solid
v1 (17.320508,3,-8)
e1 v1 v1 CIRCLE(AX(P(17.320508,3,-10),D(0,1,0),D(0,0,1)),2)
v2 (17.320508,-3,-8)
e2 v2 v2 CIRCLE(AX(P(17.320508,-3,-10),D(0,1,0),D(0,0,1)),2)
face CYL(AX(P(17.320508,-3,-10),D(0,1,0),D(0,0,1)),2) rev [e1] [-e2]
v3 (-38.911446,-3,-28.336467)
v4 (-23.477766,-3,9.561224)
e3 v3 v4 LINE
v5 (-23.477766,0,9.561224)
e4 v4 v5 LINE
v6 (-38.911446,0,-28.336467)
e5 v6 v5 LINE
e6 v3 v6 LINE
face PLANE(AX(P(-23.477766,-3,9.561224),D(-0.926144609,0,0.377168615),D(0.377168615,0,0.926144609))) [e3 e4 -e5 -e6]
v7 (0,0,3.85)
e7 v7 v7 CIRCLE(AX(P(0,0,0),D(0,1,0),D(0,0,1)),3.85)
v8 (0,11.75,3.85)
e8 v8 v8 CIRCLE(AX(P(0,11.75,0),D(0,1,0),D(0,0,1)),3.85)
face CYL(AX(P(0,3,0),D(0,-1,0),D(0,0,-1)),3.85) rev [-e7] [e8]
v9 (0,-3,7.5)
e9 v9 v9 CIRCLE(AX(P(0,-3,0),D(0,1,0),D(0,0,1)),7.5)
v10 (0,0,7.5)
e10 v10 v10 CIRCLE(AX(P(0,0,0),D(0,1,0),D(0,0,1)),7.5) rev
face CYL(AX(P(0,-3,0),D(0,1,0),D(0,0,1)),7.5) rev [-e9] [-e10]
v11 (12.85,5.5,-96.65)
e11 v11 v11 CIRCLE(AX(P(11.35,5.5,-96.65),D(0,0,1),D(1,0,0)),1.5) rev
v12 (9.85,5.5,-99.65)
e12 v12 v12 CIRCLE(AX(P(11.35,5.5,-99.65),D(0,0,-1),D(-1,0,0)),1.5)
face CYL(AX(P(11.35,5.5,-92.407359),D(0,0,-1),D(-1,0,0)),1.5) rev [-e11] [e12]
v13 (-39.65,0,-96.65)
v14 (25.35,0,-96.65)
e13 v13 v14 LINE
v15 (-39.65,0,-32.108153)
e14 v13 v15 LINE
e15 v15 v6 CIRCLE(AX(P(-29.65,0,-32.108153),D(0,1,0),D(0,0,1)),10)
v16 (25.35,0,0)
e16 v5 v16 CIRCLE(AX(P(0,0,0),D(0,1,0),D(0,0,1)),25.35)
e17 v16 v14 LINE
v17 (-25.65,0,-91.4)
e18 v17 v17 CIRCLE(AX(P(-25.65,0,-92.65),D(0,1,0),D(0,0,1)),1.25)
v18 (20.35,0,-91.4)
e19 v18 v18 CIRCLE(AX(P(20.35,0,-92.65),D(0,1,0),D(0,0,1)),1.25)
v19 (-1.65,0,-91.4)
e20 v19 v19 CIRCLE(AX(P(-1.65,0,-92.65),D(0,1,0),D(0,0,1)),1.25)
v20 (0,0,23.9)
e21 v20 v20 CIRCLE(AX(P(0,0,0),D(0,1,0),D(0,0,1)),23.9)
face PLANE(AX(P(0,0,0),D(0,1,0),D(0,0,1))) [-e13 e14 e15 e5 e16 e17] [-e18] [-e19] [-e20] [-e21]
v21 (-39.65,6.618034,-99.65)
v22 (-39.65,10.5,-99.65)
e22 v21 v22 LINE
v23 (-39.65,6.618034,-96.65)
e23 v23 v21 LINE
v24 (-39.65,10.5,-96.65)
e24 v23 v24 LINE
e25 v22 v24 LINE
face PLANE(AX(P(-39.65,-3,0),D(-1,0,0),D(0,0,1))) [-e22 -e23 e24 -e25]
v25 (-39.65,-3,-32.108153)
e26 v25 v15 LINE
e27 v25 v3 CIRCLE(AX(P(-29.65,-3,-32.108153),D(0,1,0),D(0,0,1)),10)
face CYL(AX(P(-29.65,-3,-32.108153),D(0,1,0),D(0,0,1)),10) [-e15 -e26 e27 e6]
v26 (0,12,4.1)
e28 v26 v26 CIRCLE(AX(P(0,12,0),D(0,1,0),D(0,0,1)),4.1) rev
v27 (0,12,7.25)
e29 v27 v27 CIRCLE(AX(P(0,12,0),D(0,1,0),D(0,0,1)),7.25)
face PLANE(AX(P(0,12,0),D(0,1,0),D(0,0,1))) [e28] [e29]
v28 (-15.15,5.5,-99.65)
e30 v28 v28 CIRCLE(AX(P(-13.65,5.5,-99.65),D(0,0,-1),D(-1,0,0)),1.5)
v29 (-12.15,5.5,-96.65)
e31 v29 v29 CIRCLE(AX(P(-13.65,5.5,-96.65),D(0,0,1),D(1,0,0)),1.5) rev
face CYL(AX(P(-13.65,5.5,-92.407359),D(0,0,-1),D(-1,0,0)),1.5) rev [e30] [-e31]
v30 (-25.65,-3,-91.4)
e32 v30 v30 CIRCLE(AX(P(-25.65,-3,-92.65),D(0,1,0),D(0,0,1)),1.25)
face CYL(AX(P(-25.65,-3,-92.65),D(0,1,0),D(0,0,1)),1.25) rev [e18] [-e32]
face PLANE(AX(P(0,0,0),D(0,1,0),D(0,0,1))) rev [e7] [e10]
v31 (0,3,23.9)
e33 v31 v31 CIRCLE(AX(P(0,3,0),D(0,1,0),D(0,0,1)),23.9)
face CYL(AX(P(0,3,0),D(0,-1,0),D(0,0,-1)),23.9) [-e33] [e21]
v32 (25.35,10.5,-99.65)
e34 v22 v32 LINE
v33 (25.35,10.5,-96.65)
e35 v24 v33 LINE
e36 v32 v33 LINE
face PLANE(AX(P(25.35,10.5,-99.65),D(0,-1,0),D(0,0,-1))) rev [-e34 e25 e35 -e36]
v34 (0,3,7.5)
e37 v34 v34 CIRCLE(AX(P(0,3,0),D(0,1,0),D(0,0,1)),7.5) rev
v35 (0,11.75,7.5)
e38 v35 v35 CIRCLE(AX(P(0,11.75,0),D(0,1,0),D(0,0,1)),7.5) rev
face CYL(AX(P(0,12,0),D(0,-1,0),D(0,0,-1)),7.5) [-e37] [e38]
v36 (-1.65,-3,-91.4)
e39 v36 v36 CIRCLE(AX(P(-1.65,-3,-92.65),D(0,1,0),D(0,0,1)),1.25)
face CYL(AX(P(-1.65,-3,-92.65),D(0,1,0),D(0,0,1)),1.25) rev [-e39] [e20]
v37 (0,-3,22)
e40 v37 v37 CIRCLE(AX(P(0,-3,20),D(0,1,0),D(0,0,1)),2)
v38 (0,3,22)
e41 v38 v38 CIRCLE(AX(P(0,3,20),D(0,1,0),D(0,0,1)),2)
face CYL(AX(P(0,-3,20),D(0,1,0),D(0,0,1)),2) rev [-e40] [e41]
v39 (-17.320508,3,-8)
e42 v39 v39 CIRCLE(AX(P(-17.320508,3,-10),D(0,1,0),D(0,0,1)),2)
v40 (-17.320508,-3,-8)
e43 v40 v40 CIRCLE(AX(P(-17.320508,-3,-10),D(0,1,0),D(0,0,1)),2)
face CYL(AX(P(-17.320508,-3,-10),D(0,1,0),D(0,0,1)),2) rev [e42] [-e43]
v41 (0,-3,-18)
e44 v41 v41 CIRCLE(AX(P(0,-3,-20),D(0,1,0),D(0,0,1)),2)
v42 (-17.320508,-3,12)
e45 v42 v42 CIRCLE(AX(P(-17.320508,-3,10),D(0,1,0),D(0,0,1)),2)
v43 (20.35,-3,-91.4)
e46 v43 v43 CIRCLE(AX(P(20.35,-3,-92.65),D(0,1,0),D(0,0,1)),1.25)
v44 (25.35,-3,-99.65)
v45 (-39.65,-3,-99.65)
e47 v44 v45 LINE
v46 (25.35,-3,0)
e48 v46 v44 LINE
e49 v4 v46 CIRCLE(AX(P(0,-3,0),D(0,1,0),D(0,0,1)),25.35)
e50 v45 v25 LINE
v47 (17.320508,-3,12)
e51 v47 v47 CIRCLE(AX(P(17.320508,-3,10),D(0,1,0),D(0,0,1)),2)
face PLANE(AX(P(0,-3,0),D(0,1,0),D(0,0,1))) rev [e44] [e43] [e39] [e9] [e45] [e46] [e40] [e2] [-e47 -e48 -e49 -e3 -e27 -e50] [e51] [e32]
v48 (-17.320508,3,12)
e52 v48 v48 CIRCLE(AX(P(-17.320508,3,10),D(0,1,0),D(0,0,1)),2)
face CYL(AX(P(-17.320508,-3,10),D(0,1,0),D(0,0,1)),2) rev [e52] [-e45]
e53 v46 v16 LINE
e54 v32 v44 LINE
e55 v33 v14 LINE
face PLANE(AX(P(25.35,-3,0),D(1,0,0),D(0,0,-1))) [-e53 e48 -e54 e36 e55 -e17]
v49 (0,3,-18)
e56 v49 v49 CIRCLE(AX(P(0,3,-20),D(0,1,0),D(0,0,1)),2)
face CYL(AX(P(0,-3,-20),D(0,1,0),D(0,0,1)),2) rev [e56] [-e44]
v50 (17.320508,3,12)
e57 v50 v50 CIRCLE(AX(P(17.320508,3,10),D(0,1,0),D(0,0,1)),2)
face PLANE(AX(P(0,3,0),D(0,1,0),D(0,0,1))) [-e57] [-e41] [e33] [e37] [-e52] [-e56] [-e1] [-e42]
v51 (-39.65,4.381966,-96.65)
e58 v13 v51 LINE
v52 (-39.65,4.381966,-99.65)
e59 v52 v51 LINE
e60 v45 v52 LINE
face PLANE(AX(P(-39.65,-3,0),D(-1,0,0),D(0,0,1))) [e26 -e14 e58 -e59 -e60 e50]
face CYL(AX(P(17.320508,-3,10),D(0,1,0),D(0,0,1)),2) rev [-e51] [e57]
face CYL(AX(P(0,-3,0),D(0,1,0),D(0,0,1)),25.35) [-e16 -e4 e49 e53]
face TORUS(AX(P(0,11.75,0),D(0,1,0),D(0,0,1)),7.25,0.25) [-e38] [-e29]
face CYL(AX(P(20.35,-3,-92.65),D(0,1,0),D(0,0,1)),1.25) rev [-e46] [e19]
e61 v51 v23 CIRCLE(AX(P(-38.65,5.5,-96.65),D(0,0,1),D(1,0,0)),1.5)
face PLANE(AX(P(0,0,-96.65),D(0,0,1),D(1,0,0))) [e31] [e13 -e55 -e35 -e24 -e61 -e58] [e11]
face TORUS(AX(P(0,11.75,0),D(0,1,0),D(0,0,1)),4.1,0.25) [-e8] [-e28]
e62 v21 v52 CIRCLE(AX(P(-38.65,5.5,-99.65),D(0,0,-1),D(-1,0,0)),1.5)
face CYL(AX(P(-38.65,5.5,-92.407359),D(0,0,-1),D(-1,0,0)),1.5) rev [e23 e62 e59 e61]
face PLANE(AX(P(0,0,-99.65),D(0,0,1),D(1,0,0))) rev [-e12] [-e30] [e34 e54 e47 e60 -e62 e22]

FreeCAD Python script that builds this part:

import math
import FreeCAD as App
import Part
import Sketcher

V = App.Vector
Q = App.Units.Quantity


def edges_at(feature, points):
    """Names of the edges that pass closest to the given points."""
    edges = feature.Shape.Edges
    near = lambda p: min(range(len(edges)), key=lambda i: edges[i].distToShape(Part.Vertex(*p))[0])
    return sorted({f"Edge{near(p) + 1}" for p in points})


def add_polygon(sketch, points):
    """Adds a closed chain of lines whose ends are joined by coincident constraints."""
    first, n = sketch.GeometryCount, len(points)
    for a, b in zip(points, points[1:] + points[:1]):
        sketch.addGeometry(Part.LineSegment(App.Vector(*a, 0), App.Vector(*b, 0)), False)
    for i in range(n):
        sketch.addConstraint(Sketcher.Constraint("Coincident", first + i, 2, first + (i + 1) % n, 1))

doc = App.newDocument("Part")
params = doc.addObject("Spreadsheet::Sheet", "Params")
for row, (alias, value) in enumerate([
    ("sketch1_diameter", "4 mm"),
    ("sketch1_diameter2", "15 mm"),
    ("sketch1_radius", "10 mm"),
    ("sketch1_diameter3", "2.5 mm"),
    ("sketch1_width", "65 mm"),
    ("pad1_length", "3 mm"),
    ("sketch2_diameter", "4 mm"),
    ("sketch2_diameter2", "47.8 mm"),
    ("sketch2_diameter3", "7.7 mm"),
    ("pad2_length", "3 mm"),
    ("sketch3_diameter", "15 mm"),
    ("sketch3_diameter2", "7.7 mm"),
    ("pad3_length", "12 mm"),
    ("fillet_radius", "0.25 mm"),
    ("sketch4_width", "65 mm"),
    ("sketch4_height", "13.5 mm"),
    ("pad4_length", "3 mm"),
    ("sketch5_diameter", "3 mm"),
    ("pocket1_length", "3 mm"),
], start=1):
    params.set(f"A{row}", alias)
    params.set(f"B{row}", "=" + value)
    params.setAlias(f"B{row}", alias)

body = doc.addObject("PartDesign::Body", "Body")

# Sketch on XZ plane
sketch1 = body.newObject("Sketcher::SketchObject", "Sketch")
sketch1.AttachmentSupport = (doc.getObject("XZ_Plane"), [""])
sketch1.MapMode = "FlatFace"
sketch1.addGeometry([
    Part.LineSegment(V(25.4, -96.7, 0), V(-39.6, -96.7, 0)),  # 0
    Part.LineSegment(V(-39.6, -96.7, 0), V(-39.6, -32.1, 0)),  # 1
    Part.ArcOfCircle(Part.Circle(V(-29.7, -32.1, 0), V(0, 0, 1), 10), math.radians(158), math.radians(180)),  # 2
    Part.LineSegment(V(-38.9, -28.3, 0), V(-23.5, 9.6, 0)),  # 3
    Part.ArcOfCircle(Part.Circle(V(0, 0, 0), V(0, 0, 1), 25.4), math.radians(0), math.radians(158)),  # 4
    Part.LineSegment(V(25.4, 0, 0), V(25.4, -96.7, 0)),  # 5
    Part.Circle(V(17.3, 10, 0), V(0, 0, 1), 2),  # 6
    Part.Circle(V(0, 20, 0), V(0, 0, 1), 2),  # 7
    Part.Circle(V(0, 0, 0), V(0, 0, 1), 7.5),  # 8
    Part.Circle(V(17.3, -10, 0), V(0, 0, 1), 2),  # 9
    Part.Circle(V(0, -20, 0), V(0, 0, 1), 2),  # 10
    Part.Circle(V(-17.3, 10, 0), V(0, 0, 1), 2),  # 11
    Part.Circle(V(-17.3, -10, 0), V(0, 0, 1), 2),  # 12
    Part.Circle(V(20.4, -92.7, 0), V(0, 0, 1), 1.2),  # 13
    Part.Circle(V(-1.6, -92.7, 0), V(0, 0, 1), 1.2),  # 14
    Part.Circle(V(-25.6, -92.7, 0), V(0, 0, 1), 1.2),  # 15
], False)
sketch1.addConstraint([
    Sketcher.Constraint("Coincident", 0, 2, 1, 1),
    Sketcher.Constraint("Tangent", 1, 2, 2, 2),
    Sketcher.Constraint("Tangent", 2, 1, 3, 1),
    Sketcher.Constraint("Tangent", 3, 2, 4, 2),
    Sketcher.Constraint("Tangent", 4, 1, 5, 1),
    Sketcher.Constraint("Coincident", 5, 2, 0, 1),
    Sketcher.Constraint("Horizontal", 0),
    Sketcher.Constraint("Vertical", 1),
    Sketcher.Constraint("Vertical", 5),
    Sketcher.Constraint("Coincident", 4, 3, -1, 1),
    Sketcher.Constraint("Coincident", 8, 3, -1, 1),
    Sketcher.Constraint("Equal", 6, 7),
    Sketcher.Constraint("Equal", 7, 9),
    Sketcher.Constraint("Equal", 9, 10),
    Sketcher.Constraint("Equal", 10, 11),
    Sketcher.Constraint("Equal", 11, 12),
    Sketcher.Constraint("Equal", 13, 14),
    Sketcher.Constraint("Equal", 14, 15),
    Sketcher.Constraint("Symmetric", 7, 3, 10, 3, -1, 1),
    Sketcher.Constraint("Symmetric", 9, 3, 11, 3, -1, 1),
    Sketcher.Constraint("Symmetric", 6, 3, 12, 3, -1, 1),
    Sketcher.Constraint("Symmetric", 6, 3, 11, 3, -2),
    Sketcher.Constraint("PointOnObject", 7, 3, -2),
    Sketcher.Constraint("Horizontal", 13, 3, 14, 3),
    Sketcher.Constraint("Horizontal", 14, 3, 15, 3),
    Sketcher.Constraint("Diameter", 6, Q("4 mm")),
    Sketcher.Constraint("Diameter", 8, Q("15 mm")),
    Sketcher.Constraint("Radius", 2, Q("10 mm")),
    Sketcher.Constraint("Diameter", 13, Q("2.5 mm")),
    Sketcher.Constraint("DistanceX", 0, 2, 0, 1, Q("65 mm")),
    Sketcher.Constraint("Radius", 4, Q("25.35 mm")),
    Sketcher.Constraint("DistanceY", -1, 1, 6, 3, Q("10 mm")),
    Sketcher.Constraint("DistanceY", -1, 1, 7, 3, Q("20 mm")),
    Sketcher.Constraint("DistanceX", 2, 3, 13, 3, Q("50 mm")),
    Sketcher.Constraint("DistanceX", 14, 3, 13, 3, Q("22 mm")),
    Sketcher.Constraint("DistanceX", 15, 3, 14, 3, Q("24 mm")),
    Sketcher.Constraint("DistanceY", 0, 2, 15, 3, Q("4 mm")),
    Sketcher.Constraint("DistanceY", 5, 2, 5, 1, Q("96.65 mm")),
    Sketcher.Constraint("DistanceY", 1, 1, 1, 2, Q("64.541847 mm")),
    Sketcher.Constraint("DistanceX", -1, 1, 6, 3, Q("17.320508 mm")),
])
sketch1.setExpression("Constraints[25]", "Params.sketch1_diameter")
sketch1.setExpression("Constraints[26]", "Params.sketch1_diameter2")
sketch1.setExpression("Constraints[27]", "Params.sketch1_radius")
sketch1.setExpression("Constraints[28]", "Params.sketch1_diameter3")
sketch1.setExpression("Constraints[29]", "Params.sketch1_width")
pad1 = body.newObject("PartDesign::Pad", "Pad")
pad1.Profile = sketch1
pad1.setExpression("Length", "Params.pad1_length")

# Sketch on XZ plane
sketch2 = body.newObject("Sketcher::SketchObject", "Sketch001")
sketch2.AttachmentSupport = (doc.getObject("XZ_Plane"), [""])
sketch2.MapMode = "FlatFace"
sketch2.AttachmentOffset = App.Placement(V(0, 0, -3), App.Rotation())
sketch2.addGeometry([
    Part.Circle(V(0, 0, 0), V(0, 0, 1), 23.9),  # 0
    Part.Circle(V(-17.3, -10, 0), V(0, 0, 1), 2),  # 1
    Part.Circle(V(0, -20, 0), V(0, 0, 1), 2),  # 2
    Part.Circle(V(-17.3, 10, 0), V(0, 0, 1), 2),  # 3
    Part.Circle(V(17.3, -10, 0), V(0, 0, 1), 2),  # 4
    Part.Circle(V(0, 0, 0), V(0, 0, 1), 3.9),  # 5
    Part.Circle(V(0, 20, 0), V(0, 0, 1), 2),  # 6
    Part.Circle(V(17.3, 10, 0), V(0, 0, 1), 2),  # 7
], False)
sketch2.addConstraint([
    Sketcher.Constraint("Coincident", 0, 3, -1, 1),
    Sketcher.Constraint("Coincident", 5, 3, -1, 1),
    Sketcher.Constraint("Equal", 1, 2),
    Sketcher.Constraint("Equal", 2, 3),
    Sketcher.Constraint("Equal", 3, 4),
    Sketcher.Constraint("Equal", 4, 6),
    Sketcher.Constraint("Equal", 6, 7),
    Sketcher.Constraint("Symmetric", 3, 3, 4, 3, -1, 1),
    Sketcher.Constraint("Symmetric", 2, 3, 6, 3, -1, 1),
    Sketcher.Constraint("Symmetric", 1, 3, 7, 3, -1, 1),
    Sketcher.Constraint("Symmetric", 1, 3, 4, 3, -2),
    Sketcher.Constraint("PointOnObject", 2, 3, -2),
    Sketcher.Constraint("Diameter", 1, Q("4 mm")),
    Sketcher.Constraint("Diameter", 0, Q("47.8 mm")),
    Sketcher.Constraint("Diameter", 5, Q("7.7 mm")),
    Sketcher.Constraint("DistanceY", 1, 3, -1, 1, Q("10 mm")),
    Sketcher.Constraint("DistanceY", 2, 3, -1, 1, Q("20 mm")),
    Sketcher.Constraint("DistanceX", 1, 3, -1, 1, Q("17.320508 mm")),
])
sketch2.setExpression("Constraints[12]", "Params.sketch2_diameter")
sketch2.setExpression("Constraints[13]", "Params.sketch2_diameter2")
sketch2.setExpression("Constraints[14]", "Params.sketch2_diameter3")
pad2 = body.newObject("PartDesign::Pad", "Pad001")
pad2.Profile = sketch2
pad2.setExpression("Length", "Params.pad2_length")

# Sketch on XZ plane
sketch3 = body.newObject("Sketcher::SketchObject", "Sketch002")
sketch3.AttachmentSupport = (doc.getObject("XZ_Plane"), [""])
sketch3.MapMode = "FlatFace"
sketch3.AttachmentOffset = App.Placement(V(0, 0, -12), App.Rotation())
sketch3.addGeometry([
    Part.Circle(V(0, 0, 0), V(0, 0, 1), 7.5),
    Part.Circle(V(0, 0, 0), V(0, 0, 1), 3.9),
], False)
sketch3.addConstraint([
    Sketcher.Constraint("Coincident", 0, 3, -1, 1),
    Sketcher.Constraint("Coincident", 1, 3, -1, 1),
    Sketcher.Constraint("Diameter", 0, Q("15 mm")),
    Sketcher.Constraint("Diameter", 1, Q("7.7 mm")),
])
sketch3.setExpression("Constraints[2]", "Params.sketch3_diameter")
sketch3.setExpression("Constraints[3]", "Params.sketch3_diameter2")
pad3 = body.newObject("PartDesign::Pad", "Pad002")
pad3.Profile = sketch3
pad3.setExpression("Length", "Params.pad3_length")
doc.recompute()

fillet = body.newObject("PartDesign::Fillet", "Fillet")
fillet.Base = (pad3, edges_at(pad3, [(0, 12, -3.85), (0, 12, -7.5)]))
fillet.setExpression("Radius", "Params.fillet_radius")

# Sketch on XY plane
sketch4 = body.newObject("Sketcher::SketchObject", "Sketch003")
sketch4.AttachmentSupport = (doc.getObject("XY_Plane"), [""])
sketch4.MapMode = "FlatFace"
sketch4.AttachmentOffset = App.Placement(V(0, 0, -96.65), App.Rotation())
add_polygon(sketch4, [(25, 10), (25, -3), (-40, -3), (-40, 10)])  # lines 0-3
sketch4.addConstraint([
    Sketcher.Constraint("Vertical", 0),
    Sketcher.Constraint("Horizontal", 1),
    Sketcher.Constraint("Vertical", 2),
    Sketcher.Constraint("Horizontal", 3),
    Sketcher.Constraint("DistanceX", 1, 2, 1, 1, Q("65 mm")),
    Sketcher.Constraint("DistanceY", 0, 2, 0, 1, Q("13.5 mm")),
    Sketcher.Constraint("DistanceY", 0, 2, -1, 1, Q("3 mm")),
    Sketcher.Constraint("DistanceX", -1, 1, 0, 2, Q("25.35 mm")),
])
sketch4.setExpression("Constraints[8]", "Params.sketch4_width")
sketch4.setExpression("Constraints[9]", "Params.sketch4_height")
pad4 = body.newObject("PartDesign::Pad", "Pad003")
pad4.Profile = sketch4
pad4.setExpression("Length", "Params.pad4_length")
pad4.Reversed = True

# Sketch on XY plane
sketch5 = body.newObject("Sketcher::SketchObject", "Sketch004")
sketch5.AttachmentSupport = (doc.getObject("XY_Plane"), [""])
sketch5.MapMode = "FlatFace"
sketch5.AttachmentOffset = App.Placement(V(0, 0, -99.65), App.Rotation())
sketch5.addGeometry([
    Part.Circle(V(11.3, 5.5, 0), V(0, 0, 1), 1.5),
    Part.Circle(V(-13.7, 5.5, 0), V(0, 0, 1), 1.5),
    Part.Circle(V(-38.6, 5.5, 0), V(0, 0, 1), 1.5),
], False)
sketch5.addConstraint([
    Sketcher.Constraint("Equal", 0, 1),
    Sketcher.Constraint("Equal", 1, 2),
    Sketcher.Constraint("Horizontal", 0, 3, 1, 3),
    Sketcher.Constraint("Horizontal", 1, 3, 2, 3),
    Sketcher.Constraint("Diameter", 0, Q("3 mm")),
    Sketcher.Constraint("DistanceX", 1, 3, 0, 3, Q("25 mm")),
    Sketcher.Constraint("DistanceX", 2, 3, 1, 3, Q("25 mm")),
    Sketcher.Constraint("DistanceY", -1, 1, 0, 3, Q("5.5 mm")),
    Sketcher.Constraint("DistanceX", -1, 1, 0, 3, Q("11.35 mm")),
])
sketch5.setExpression("Constraints[4]", "Params.sketch5_diameter")
pocket1 = body.newObject("PartDesign::Pocket", "Pocket")
pocket1.Profile = sketch5
pocket1.setExpression("Length", "Params.pocket1_length")
pocket1.Reversed = True

doc.recompute()
